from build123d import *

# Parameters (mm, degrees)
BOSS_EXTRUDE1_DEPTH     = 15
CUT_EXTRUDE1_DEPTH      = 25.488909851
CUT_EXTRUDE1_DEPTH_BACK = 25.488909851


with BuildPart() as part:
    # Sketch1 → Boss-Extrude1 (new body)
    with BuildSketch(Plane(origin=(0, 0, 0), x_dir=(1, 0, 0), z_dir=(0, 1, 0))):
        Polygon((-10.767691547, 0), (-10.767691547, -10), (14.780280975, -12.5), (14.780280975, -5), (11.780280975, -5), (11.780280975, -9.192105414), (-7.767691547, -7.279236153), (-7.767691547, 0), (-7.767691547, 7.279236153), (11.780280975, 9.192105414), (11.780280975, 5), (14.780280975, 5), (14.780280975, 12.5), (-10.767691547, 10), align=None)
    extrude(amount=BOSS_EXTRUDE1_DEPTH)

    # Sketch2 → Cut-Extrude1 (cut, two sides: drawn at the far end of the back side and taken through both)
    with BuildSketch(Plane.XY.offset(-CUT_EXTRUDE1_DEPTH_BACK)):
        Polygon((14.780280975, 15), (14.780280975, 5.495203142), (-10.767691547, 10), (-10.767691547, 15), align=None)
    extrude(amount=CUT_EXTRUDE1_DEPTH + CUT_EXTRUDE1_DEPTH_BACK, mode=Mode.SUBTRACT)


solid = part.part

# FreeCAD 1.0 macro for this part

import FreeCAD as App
import Part
import Sketcher
Q = App.Units.Quantity


def add_polygon(sketch, points):
    """Adds a closed chain of lines whose ends are joined by coincident constraints."""
    first, n = sketch.GeometryCount, len(points)
    for a, b in zip(points, points[1:] + points[:1]):
        sketch.addGeometry(Part.LineSegment(App.Vector(*a, 0), App.Vector(*b, 0)), False)
    for i in range(n):
        sketch.addConstraint(Sketcher.Constraint("Coincident", first + i, 2, first + (i + 1) % n, 1))

doc = App.newDocument("Part")
params = doc.addObject("Spreadsheet::Sheet", "Params")
for row, (alias, value) in enumerate([
    ("sketch1_width", "3 mm"),
    ("sketch1_height", "20 mm"),
    ("sketch1_height2", "7.5 mm"),
    ("sketch1_length", "25.67 mm"),
    ("pad1_length", "15 mm"),
    ("sketch2_height", "5 mm"),
], start=1):
    params.set(f"A{row}", alias)
    params.set(f"B{row}", "=" + value)
    params.setAlias(f"B{row}", alias)

body = doc.addObject("PartDesign::Body", "Body")

sketch1 = body.newObject("Sketcher::SketchObject", "Sketch")
sketch1.AttachmentSupport = (doc.getObject("XZ_Plane"), [""])
sketch1.MapMode = "FlatFace"
add_polygon(sketch1, [(-10.767692, 10), (14.780281, 12.5), (14.780281, 5), (11.780281, 5), (11.780281, 9.192105), (-7.767692, 7.279236), (-7.767692, -7.279236), (11.780281, -9.192105), (11.780281, -5), (14.780281, -5), (14.780281, -12.5), (-10.767692, -10)])
sketch1.addConstraint(Sketcher.Constraint("Vertical", 1))
sketch1.addConstraint(Sketcher.Constraint("Horizontal", 2))
sketch1.addConstraint(Sketcher.Constraint("Vertical", 3))
sketch1.addConstraint(Sketcher.Constraint("Vertical", 5))
sketch1.addConstraint(Sketcher.Constraint("Vertical", 7))
sketch1.addConstraint(Sketcher.Constraint("Horizontal", 8))
sketch1.addConstraint(Sketcher.Constraint("Vertical", 9))
sketch1.addConstraint(Sketcher.Constraint("Vertical", 11))
sketch1.addConstraint(Sketcher.Constraint("Symmetric", 3, 2, 6, 2, -1))
sketch1.addConstraint(Sketcher.Constraint("Symmetric", 1, 2, 8, 2, -1))
sketch1.addConstraint(Sketcher.Constraint("Parallel", 0, 4))
sketch1.addConstraint(Sketcher.Constraint("Parallel", 6, 10))
sketch1.addConstraint(Sketcher.Constraint("Equal", 1, 9))
sketch1.addConstraint(Sketcher.Constraint("Equal", 4, 6))
sketch1.addConstraint(Sketcher.Constraint("DistanceX", 2, 2, 2, 1, Q("3 mm")))
sketch1.addConstraint(Sketcher.Constraint("DistanceY", 11, 1, 11, 2, Q("20 mm")))
sketch1.addConstraint(Sketcher.Constraint("DistanceY", 1, 2, 1, 1, Q("7.5 mm")))
sketch1.addConstraint(Sketcher.Constraint("DistanceY", -1, 1, 1, 2, Q("5 mm")))
sketch1.addConstraint(Sketcher.Constraint("DistanceX", 10, 2, 5, 2, Q("3 mm")))
sketch1.addConstraint(Sketcher.Constraint("Distance", 0, Q("25.67 mm")))
sketch1.addConstraint(Sketcher.Constraint("DistanceY", 3, 1, 3, 2, Q("4.192105 mm")))
sketch1.addConstraint(Sketcher.Constraint("DistanceX", -1, 1, 0, 2, Q("14.780281 mm")))
sketch1.setExpression("Constraints[26]", "Params.sketch1_width")
sketch1.setExpression("Constraints[27]", "Params.sketch1_height")
sketch1.setExpression("Constraints[28]", "Params.sketch1_height2")
sketch1.setExpression("Constraints[31]", "Params.sketch1_length")
pad1 = body.newObject("PartDesign::Pad", "Pad")
pad1.Profile = sketch1
pad1.setExpression("Length", "Params.pad1_length")
pad1.Reversed = True

sketch2 = body.newObject("Sketcher::SketchObject", "Sketch001")
sketch2.AttachmentSupport = (doc.getObject("XY_Plane"), [""])
sketch2.MapMode = "FlatFace"
add_polygon(sketch2, [(14.780281, 5.495203), (14.780281, 15), (-10.767692, 15), (-10.767692, 10)])
sketch2.addConstraint(Sketcher.Constraint("Vertical", 0))
sketch2.addConstraint(Sketcher.Constraint("Horizontal", 1))
sketch2.addConstraint(Sketcher.Constraint("Vertical", 2))
sketch2.addConstraint(Sketcher.Constraint("DistanceY", 2, 2, 2, 1, Q("5 mm")))
sketch2.addConstraint(Sketcher.Constraint("Angle", 3, Q("-10 deg")))
sketch2.addConstraint(Sketcher.Constraint("DistanceY", -1, 1, 0, 2, Q("15 mm")))
sketch2.addConstraint(Sketcher.Constraint("Distance", 3, Q("25.942091 mm")))
sketch2.addConstraint(Sketcher.Constraint("DistanceX", -1, 1, 0, 2, Q("14.780281 mm")))
sketch2.setExpression("Constraints[7]", "Params.sketch2_height")
pocket1 = body.newObject("PartDesign::Pocket", "Pocket")
pocket1.Profile = sketch2
pocket1.Type = "ThroughAll"
pocket1.Midplane = True

doc.recompute()
